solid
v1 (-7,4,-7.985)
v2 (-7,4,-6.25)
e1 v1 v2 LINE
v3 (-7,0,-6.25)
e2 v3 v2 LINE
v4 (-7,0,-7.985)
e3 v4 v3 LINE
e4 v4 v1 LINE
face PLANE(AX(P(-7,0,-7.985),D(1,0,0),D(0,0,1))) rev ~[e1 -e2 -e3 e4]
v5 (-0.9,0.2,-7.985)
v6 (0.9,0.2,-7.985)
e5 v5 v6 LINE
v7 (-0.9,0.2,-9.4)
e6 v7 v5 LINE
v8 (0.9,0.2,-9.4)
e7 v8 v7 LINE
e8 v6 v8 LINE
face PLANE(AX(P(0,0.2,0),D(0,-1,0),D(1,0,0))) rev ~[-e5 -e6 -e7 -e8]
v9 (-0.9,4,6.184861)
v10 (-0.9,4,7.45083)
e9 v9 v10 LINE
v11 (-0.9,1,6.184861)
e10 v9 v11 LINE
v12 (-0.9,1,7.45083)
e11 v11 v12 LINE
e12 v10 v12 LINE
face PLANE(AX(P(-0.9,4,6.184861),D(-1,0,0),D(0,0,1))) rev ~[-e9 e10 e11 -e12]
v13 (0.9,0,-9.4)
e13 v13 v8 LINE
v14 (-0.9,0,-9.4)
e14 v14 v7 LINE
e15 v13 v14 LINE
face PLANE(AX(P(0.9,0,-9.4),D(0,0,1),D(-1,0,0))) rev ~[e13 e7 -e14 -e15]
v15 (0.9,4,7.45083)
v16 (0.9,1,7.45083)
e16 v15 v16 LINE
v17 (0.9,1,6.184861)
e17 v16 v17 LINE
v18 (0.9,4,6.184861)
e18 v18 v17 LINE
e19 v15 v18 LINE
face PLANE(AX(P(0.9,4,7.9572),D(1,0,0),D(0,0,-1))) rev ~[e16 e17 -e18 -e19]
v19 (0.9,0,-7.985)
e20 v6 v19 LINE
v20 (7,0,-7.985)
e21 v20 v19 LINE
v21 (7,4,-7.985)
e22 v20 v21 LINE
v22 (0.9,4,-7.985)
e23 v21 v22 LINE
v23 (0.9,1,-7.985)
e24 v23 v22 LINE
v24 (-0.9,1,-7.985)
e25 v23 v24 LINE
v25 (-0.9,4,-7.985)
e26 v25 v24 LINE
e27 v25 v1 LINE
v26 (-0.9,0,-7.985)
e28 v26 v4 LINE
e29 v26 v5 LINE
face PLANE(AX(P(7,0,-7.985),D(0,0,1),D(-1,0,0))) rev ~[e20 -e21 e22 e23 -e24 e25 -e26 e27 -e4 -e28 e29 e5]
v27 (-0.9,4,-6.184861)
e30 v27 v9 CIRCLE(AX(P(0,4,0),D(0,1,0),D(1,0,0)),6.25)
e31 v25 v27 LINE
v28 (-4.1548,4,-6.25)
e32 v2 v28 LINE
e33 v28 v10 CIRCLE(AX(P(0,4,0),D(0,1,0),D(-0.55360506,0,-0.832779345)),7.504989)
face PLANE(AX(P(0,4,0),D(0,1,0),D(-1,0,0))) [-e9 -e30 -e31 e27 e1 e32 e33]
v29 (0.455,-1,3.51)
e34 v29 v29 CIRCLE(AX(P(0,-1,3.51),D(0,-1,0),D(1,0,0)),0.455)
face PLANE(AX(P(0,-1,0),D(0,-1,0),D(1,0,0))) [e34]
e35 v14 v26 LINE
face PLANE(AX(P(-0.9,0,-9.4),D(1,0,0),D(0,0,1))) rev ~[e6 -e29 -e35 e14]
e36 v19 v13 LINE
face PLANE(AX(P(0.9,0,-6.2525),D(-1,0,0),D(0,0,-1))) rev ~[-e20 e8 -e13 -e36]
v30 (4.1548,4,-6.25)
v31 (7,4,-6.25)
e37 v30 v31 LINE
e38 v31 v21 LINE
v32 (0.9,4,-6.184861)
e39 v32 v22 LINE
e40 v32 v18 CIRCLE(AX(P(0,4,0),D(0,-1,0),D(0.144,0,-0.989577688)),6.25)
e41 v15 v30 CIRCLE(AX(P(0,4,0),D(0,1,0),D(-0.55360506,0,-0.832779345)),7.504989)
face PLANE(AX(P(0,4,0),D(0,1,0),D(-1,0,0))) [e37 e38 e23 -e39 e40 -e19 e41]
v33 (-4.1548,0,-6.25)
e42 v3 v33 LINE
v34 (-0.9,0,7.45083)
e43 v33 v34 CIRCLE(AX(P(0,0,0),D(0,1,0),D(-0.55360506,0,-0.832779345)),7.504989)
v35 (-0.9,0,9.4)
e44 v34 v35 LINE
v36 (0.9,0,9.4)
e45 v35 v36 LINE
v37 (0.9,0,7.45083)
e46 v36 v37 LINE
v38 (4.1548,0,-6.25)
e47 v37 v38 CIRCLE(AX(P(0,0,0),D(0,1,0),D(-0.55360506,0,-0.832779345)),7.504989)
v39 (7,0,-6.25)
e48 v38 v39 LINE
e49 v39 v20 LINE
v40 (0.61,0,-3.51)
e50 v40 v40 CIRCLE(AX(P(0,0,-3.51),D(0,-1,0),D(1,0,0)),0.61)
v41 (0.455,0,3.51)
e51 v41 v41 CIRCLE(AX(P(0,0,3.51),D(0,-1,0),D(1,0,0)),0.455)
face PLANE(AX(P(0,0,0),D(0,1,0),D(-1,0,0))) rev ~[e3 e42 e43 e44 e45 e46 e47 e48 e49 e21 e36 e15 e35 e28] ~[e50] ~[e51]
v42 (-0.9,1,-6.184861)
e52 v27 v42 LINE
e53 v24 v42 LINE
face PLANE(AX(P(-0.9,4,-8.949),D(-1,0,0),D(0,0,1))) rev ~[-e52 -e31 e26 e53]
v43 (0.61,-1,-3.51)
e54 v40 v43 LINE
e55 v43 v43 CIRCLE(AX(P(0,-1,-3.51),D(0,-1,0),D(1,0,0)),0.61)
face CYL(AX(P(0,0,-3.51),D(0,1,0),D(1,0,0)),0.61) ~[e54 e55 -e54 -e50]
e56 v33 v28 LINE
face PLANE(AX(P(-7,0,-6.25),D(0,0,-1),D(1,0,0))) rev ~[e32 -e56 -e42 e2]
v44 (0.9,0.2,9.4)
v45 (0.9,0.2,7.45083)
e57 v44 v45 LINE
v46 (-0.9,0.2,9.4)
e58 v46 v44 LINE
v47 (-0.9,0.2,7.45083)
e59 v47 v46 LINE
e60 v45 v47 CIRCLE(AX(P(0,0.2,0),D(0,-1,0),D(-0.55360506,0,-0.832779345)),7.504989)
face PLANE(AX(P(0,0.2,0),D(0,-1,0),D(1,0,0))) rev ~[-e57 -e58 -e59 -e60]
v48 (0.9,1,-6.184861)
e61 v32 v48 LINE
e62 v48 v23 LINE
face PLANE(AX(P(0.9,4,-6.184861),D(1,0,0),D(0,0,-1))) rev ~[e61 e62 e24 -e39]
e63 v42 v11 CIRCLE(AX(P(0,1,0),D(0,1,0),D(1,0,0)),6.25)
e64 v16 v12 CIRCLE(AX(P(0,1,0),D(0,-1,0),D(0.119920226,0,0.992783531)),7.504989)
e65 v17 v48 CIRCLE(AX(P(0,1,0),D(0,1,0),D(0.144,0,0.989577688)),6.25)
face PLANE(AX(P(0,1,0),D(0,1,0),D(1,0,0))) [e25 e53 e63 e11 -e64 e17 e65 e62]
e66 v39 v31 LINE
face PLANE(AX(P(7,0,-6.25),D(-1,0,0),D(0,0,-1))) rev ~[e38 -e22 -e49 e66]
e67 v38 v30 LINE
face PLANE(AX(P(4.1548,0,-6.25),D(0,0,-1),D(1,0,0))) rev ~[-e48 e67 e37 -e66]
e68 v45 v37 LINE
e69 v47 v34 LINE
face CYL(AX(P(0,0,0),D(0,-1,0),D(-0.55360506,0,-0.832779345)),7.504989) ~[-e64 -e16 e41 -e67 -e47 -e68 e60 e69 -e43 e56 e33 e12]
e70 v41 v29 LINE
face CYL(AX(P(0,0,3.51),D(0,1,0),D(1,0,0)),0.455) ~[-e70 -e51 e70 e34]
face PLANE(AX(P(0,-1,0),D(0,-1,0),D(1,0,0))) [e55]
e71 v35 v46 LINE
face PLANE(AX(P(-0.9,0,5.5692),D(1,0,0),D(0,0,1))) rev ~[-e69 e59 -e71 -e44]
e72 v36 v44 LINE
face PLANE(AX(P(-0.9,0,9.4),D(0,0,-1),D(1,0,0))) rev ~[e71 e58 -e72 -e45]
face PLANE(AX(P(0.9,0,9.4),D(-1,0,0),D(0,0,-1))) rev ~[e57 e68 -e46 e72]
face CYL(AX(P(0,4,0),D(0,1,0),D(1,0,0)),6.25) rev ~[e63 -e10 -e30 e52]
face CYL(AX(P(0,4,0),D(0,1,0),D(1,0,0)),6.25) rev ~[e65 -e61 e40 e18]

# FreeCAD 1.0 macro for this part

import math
import FreeCAD as App
import Part
import Sketcher
from FreeCAD import Vector
Q = App.Units.Quantity

doc = App.newDocument("Part")
body = doc.addObject("PartDesign::Body", "Body")

sketch1 = body.newObject("Sketcher::SketchObject", "Sketch")
sketch1.AttachmentSupport = (doc.getObject("XZ_Plane"), [""])
sketch1.MapMode = "FlatFace"
sketch1.addGeometry(Part.LineSegment(Vector(-7, -6.25, 0), Vector(-4.1548, -6.25, 0)), False)
sketch1.addGeometry(Part.ArcOfCircle(Part.Circle(Vector(0, 0, 0), Vector(0, 0, 1), 7.504989), math.radians(-56.385312), math.radians(236.385312)), False)
sketch1.addGeometry(Part.LineSegment(Vector(4.1548, -6.25, 0), Vector(7, -6.25, 0)), False)
sketch1.addGeometry(Part.LineSegment(Vector(7, -6.25, 0), Vector(7, -7.985, 0)), False)
sketch1.addGeometry(Part.LineSegment(Vector(7, -7.985, 0), Vector(-7, -7.985, 0)), False)
sketch1.addGeometry(Part.LineSegment(Vector(-7, -7.985, 0), Vector(-7, -6.25, 0)), False)
sketch1.addConstraint(Sketcher.Constraint("Coincident", 0, 2, 1, 2))
sketch1.addConstraint(Sketcher.Constraint("Coincident", 1, 1, 2, 1))
sketch1.addConstraint(Sketcher.Constraint("Coincident", 2, 2, 3, 1))
sketch1.addConstraint(Sketcher.Constraint("Coincident", 3, 2, 4, 1))
sketch1.addConstraint(Sketcher.Constraint("Coincident", 4, 2, 5, 1))
sketch1.addConstraint(Sketcher.Constraint("Coincident", 5, 2, 0, 1))
sketch1.addConstraint(Sketcher.Constraint("Horizontal", 0))
sketch1.addConstraint(Sketcher.Constraint("Horizontal", 2))
sketch1.addConstraint(Sketcher.Constraint("Vertical", 3))
sketch1.addConstraint(Sketcher.Constraint("Horizontal", 4))
sketch1.addConstraint(Sketcher.Constraint("Vertical", 5))
sketch1.addConstraint(Sketcher.Constraint("Coincident", 1, 3, -1, 1))
sketch1.addConstraint(Sketcher.Constraint("Symmetric", 2, 2, 5, 2, -2))
sketch1.addConstraint(Sketcher.Constraint("DistanceX", 4, 2, 4, 1, Q("14 mm")))
sketch1.addConstraint(Sketcher.Constraint("Radius", 1, Q("7.505 mm")))
sketch1.addConstraint(Sketcher.Constraint("DistanceY", 3, 2, 3, 1, Q("1.735 mm")))
sketch1.addConstraint(Sketcher.Constraint("DistanceY", 0, 2, -1, 1, Q("6.25 mm")))
pad1 = body.newObject("PartDesign::Pad", "Pad")
pad1.Profile = sketch1
pad1.Length = 4
pad1.Reversed = True

sketch2 = body.newObject("Sketcher::SketchObject", "Sketch001")
sketch2.AttachmentSupport = (doc.getObject("XZ_Plane"), [""])
sketch2.MapMode = "FlatFace"
sketch2.AttachmentOffset = App.Placement(Vector(0, 0, -4), App.Rotation())
sketch2.addGeometry(Part.ArcOfCircle(Part.Circle(Vector(0, 0, 0), Vector(0, 0, 1), 6.25), math.radians(-81.720624), math.radians(81.720624)), False)
sketch2.addGeometry(Part.LineSegment(Vector(0.9, -6.184861, 0), Vector(0.9, -8.949, 0)), False)
sketch2.addGeometry(Part.LineSegment(Vector(0.9, -8.949, 0), Vector(-0.9, -8.949, 0)), False)
sketch2.addGeometry(Part.LineSegment(Vector(-0.9, -8.949, 0), Vector(-0.9, -6.184861, 0)), False)
sketch2.addGeometry(Part.ArcOfCircle(Part.Circle(Vector(0, 0, 0), Vector(0, 0, 1), 6.25), math.radians(98.279376), math.radians(261.720624)), False)
sketch2.addGeometry(Part.LineSegment(Vector(-0.9, 6.184861, 0), Vector(-0.9, 7.9572, 0)), False)
sketch2.addGeometry(Part.LineSegment(Vector(-0.9, 7.9572, 0), Vector(0.9, 7.9572, 0)), False)
sketch2.addGeometry(Part.LineSegment(Vector(0.9, 7.9572, 0), Vector(0.9, 6.184861, 0)), False)
sketch2.addConstraint(Sketcher.Constraint("Coincident", 0, 1, 1, 1))
sketch2.addConstraint(Sketcher.Constraint("Coincident", 1, 2, 2, 1))
sketch2.addConstraint(Sketcher.Constraint("Coincident", 2, 2, 3, 1))
sketch2.addConstraint(Sketcher.Constraint("Coincident", 3, 2, 4, 2))
sketch2.addConstraint(Sketcher.Constraint("Coincident", 4, 1, 5, 1))
sketch2.addConstraint(Sketcher.Constraint("Coincident", 5, 2, 6, 1))
sketch2.addConstraint(Sketcher.Constraint("Coincident", 6, 2, 7, 1))
sketch2.addConstraint(Sketcher.Constraint("Coincident", 7, 2, 0, 2))
sketch2.addConstraint(Sketcher.Constraint("Vertical", 1))
sketch2.addConstraint(Sketcher.Constraint("Horizontal", 2))
sketch2.addConstraint(Sketcher.Constraint("Vertical", 3))
sketch2.addConstraint(Sketcher.Constraint("Vertical", 5))
sketch2.addConstraint(Sketcher.Constraint("Horizontal", 6))
sketch2.addConstraint(Sketcher.Constraint("Vertical", 7))
sketch2.addConstraint(Sketcher.Constraint("Coincident", 0, 3, -1, 1))
sketch2.addConstraint(Sketcher.Constraint("Coincident", 4, 3, -1, 1))
sketch2.addConstraint(Sketcher.Constraint("Equal", 0, 4))
sketch2.addConstraint(Sketcher.Constraint("Horizontal", 0, 1, 3, 2))
sketch2.addConstraint(Sketcher.Constraint("Horizontal", 4, 1, 7, 2))
sketch2.addConstraint(Sketcher.Constraint("Vertical", 3, 2, 4, 1))
sketch2.addConstraint(Sketcher.Constraint("Radius", 0, Q("6.25 mm")))
sketch2.addConstraint(Sketcher.Constraint("DistanceX", 2, 2, 2, 1, Q("1.8 mm")))
sketch2.addConstraint(Sketcher.Constraint("DistanceY", 1, 2, 1, 1, Q("2.7641 mm")))
sketch2.addConstraint(Sketcher.Constraint("DistanceY", 5, 1, 5, 2, Q("1.7723 mm")))
pocket1 = body.newObject("PartDesign::Pocket", "Pocket")
pocket1.Profile = sketch2
pocket1.Length = 3
pocket1.Reversed = True

sketch3 = body.newObject("Sketcher::SketchObject", "Sketch002")
sketch3.AttachmentSupport = (doc.getObject("XZ_Plane"), [""])
sketch3.MapMode = "FlatFace"
sketch3.addGeometry(Part.LineSegment(Vector(-0.9, 5.5692, 0), Vector(0.9, 5.5692, 0)), False)
sketch3.addGeometry(Part.LineSegment(Vector(0.9, 5.5692, 0), Vector(0.9, 9.4, 0)), False)
sketch3.addGeometry(Part.LineSegment(Vector(0.9, 9.4, 0), Vector(-0.9, 9.4, 0)), False)
sketch3.addGeometry(Part.LineSegment(Vector(-0.9, 9.4, 0), Vector(-0.9, 5.5692, 0)), False)
sketch3.addGeometry(Part.LineSegment(Vector(0.9, -6.2525, 0), Vector(-0.9, -6.2525, 0)), False)
sketch3.addGeometry(Part.LineSegment(Vector(-0.9, -6.2525, 0), Vector(-0.9, -9.4, 0)), False)
sketch3.addGeometry(Part.LineSegment(Vector(-0.9, -9.4, 0), Vector(0.9, -9.4, 0)), False)
sketch3.addGeometry(Part.LineSegment(Vector(0.9, -9.4, 0), Vector(0.9, -6.2525, 0)), False)
sketch3.addConstraint(Sketcher.Constraint("Coincident", 0, 2, 1, 1))
sketch3.addConstraint(Sketcher.Constraint("Coincident", 1, 2, 2, 1))
sketch3.addConstraint(Sketcher.Constraint("Coincident", 2, 2, 3, 1))
sketch3.addConstraint(Sketcher.Constraint("Coincident", 3, 2, 0, 1))
sketch3.addConstraint(Sketcher.Constraint("Coincident", 4, 2, 5, 1))
sketch3.addConstraint(Sketcher.Constraint("Coincident", 5, 2, 6, 1))
sketch3.addConstraint(Sketcher.Constraint("Coincident", 6, 2, 7, 1))
sketch3.addConstraint(Sketcher.Constraint("Coincident", 7, 2, 4, 1))
sketch3.addConstraint(Sketcher.Constraint("Horizontal", 0))
sketch3.addConstraint(Sketcher.Constraint("Vertical", 1))
sketch3.addConstraint(Sketcher.Constraint("Horizontal", 2))
sketch3.addConstraint(Sketcher.Constraint("Vertical", 3))
sketch3.addConstraint(Sketcher.Constraint("Horizontal", 4))
sketch3.addConstraint(Sketcher.Constraint("Vertical", 5))
sketch3.addConstraint(Sketcher.Constraint("Horizontal", 6))
sketch3.addConstraint(Sketcher.Constraint("Vertical", 7))
sketch3.addConstraint(Sketcher.Constraint("Symmetric", 1, 2, 5, 2, -1, 1))
sketch3.addConstraint(Sketcher.Constraint("Vertical", 3, 2, 4, 2))
sketch3.addConstraint(Sketcher.Constraint("Vertical", 1, 2, 6, 2))
sketch3.addConstraint(Sketcher.Constraint("DistanceX", 0, 1, 0, 2, Q("1.8 mm")))
sketch3.addConstraint(Sketcher.Constraint("DistanceY", -1, 1, 1, 2, Q("9.4 mm")))
sketch3.addConstraint(Sketcher.Constraint("DistanceY", 1, 1, 1, 2, Q("3.8308 mm")))
sketch3.addConstraint(Sketcher.Constraint("DistanceY", 5, 2, 5, 1, Q("3.1475 mm")))
pad2 = body.newObject("PartDesign::Pad", "Pad001")
pad2.Profile = sketch3
pad2.Length = 0.2
pad2.Reversed = True

sketch4 = body.newObject("Sketcher::SketchObject", "Sketch003")
sketch4.AttachmentSupport = (doc.getObject("XZ_Plane"), [""])
sketch4.MapMode = "FlatFace"
sketch4.addGeometry(Part.Circle(Vector(0, -3.51, 0), Vector(0, 0, 1), 0.61), False)
sketch4.addGeometry(Part.Circle(Vector(0, 3.51, 0), Vector(0, 0, 1), 0.455), False)
sketch4.addConstraint(Sketcher.Constraint("Symmetric", 0, 3, 1, 3, -1, 1))
sketch4.addConstraint(Sketcher.Constraint("PointOnObject", 0, 3, -2))
sketch4.addConstraint(Sketcher.Constraint("Diameter", 0, Q("1.22 mm")))
sketch4.addConstraint(Sketcher.Constraint("Diameter", 1, Q("0.91 mm")))
sketch4.addConstraint(Sketcher.Constraint("DistanceY", 0, 3, -1, 1, Q("3.51 mm")))
pad3 = body.newObject("PartDesign::Pad", "Pad002")
pad3.Profile = sketch4
pad3.Length = 1

doc.recompute()
